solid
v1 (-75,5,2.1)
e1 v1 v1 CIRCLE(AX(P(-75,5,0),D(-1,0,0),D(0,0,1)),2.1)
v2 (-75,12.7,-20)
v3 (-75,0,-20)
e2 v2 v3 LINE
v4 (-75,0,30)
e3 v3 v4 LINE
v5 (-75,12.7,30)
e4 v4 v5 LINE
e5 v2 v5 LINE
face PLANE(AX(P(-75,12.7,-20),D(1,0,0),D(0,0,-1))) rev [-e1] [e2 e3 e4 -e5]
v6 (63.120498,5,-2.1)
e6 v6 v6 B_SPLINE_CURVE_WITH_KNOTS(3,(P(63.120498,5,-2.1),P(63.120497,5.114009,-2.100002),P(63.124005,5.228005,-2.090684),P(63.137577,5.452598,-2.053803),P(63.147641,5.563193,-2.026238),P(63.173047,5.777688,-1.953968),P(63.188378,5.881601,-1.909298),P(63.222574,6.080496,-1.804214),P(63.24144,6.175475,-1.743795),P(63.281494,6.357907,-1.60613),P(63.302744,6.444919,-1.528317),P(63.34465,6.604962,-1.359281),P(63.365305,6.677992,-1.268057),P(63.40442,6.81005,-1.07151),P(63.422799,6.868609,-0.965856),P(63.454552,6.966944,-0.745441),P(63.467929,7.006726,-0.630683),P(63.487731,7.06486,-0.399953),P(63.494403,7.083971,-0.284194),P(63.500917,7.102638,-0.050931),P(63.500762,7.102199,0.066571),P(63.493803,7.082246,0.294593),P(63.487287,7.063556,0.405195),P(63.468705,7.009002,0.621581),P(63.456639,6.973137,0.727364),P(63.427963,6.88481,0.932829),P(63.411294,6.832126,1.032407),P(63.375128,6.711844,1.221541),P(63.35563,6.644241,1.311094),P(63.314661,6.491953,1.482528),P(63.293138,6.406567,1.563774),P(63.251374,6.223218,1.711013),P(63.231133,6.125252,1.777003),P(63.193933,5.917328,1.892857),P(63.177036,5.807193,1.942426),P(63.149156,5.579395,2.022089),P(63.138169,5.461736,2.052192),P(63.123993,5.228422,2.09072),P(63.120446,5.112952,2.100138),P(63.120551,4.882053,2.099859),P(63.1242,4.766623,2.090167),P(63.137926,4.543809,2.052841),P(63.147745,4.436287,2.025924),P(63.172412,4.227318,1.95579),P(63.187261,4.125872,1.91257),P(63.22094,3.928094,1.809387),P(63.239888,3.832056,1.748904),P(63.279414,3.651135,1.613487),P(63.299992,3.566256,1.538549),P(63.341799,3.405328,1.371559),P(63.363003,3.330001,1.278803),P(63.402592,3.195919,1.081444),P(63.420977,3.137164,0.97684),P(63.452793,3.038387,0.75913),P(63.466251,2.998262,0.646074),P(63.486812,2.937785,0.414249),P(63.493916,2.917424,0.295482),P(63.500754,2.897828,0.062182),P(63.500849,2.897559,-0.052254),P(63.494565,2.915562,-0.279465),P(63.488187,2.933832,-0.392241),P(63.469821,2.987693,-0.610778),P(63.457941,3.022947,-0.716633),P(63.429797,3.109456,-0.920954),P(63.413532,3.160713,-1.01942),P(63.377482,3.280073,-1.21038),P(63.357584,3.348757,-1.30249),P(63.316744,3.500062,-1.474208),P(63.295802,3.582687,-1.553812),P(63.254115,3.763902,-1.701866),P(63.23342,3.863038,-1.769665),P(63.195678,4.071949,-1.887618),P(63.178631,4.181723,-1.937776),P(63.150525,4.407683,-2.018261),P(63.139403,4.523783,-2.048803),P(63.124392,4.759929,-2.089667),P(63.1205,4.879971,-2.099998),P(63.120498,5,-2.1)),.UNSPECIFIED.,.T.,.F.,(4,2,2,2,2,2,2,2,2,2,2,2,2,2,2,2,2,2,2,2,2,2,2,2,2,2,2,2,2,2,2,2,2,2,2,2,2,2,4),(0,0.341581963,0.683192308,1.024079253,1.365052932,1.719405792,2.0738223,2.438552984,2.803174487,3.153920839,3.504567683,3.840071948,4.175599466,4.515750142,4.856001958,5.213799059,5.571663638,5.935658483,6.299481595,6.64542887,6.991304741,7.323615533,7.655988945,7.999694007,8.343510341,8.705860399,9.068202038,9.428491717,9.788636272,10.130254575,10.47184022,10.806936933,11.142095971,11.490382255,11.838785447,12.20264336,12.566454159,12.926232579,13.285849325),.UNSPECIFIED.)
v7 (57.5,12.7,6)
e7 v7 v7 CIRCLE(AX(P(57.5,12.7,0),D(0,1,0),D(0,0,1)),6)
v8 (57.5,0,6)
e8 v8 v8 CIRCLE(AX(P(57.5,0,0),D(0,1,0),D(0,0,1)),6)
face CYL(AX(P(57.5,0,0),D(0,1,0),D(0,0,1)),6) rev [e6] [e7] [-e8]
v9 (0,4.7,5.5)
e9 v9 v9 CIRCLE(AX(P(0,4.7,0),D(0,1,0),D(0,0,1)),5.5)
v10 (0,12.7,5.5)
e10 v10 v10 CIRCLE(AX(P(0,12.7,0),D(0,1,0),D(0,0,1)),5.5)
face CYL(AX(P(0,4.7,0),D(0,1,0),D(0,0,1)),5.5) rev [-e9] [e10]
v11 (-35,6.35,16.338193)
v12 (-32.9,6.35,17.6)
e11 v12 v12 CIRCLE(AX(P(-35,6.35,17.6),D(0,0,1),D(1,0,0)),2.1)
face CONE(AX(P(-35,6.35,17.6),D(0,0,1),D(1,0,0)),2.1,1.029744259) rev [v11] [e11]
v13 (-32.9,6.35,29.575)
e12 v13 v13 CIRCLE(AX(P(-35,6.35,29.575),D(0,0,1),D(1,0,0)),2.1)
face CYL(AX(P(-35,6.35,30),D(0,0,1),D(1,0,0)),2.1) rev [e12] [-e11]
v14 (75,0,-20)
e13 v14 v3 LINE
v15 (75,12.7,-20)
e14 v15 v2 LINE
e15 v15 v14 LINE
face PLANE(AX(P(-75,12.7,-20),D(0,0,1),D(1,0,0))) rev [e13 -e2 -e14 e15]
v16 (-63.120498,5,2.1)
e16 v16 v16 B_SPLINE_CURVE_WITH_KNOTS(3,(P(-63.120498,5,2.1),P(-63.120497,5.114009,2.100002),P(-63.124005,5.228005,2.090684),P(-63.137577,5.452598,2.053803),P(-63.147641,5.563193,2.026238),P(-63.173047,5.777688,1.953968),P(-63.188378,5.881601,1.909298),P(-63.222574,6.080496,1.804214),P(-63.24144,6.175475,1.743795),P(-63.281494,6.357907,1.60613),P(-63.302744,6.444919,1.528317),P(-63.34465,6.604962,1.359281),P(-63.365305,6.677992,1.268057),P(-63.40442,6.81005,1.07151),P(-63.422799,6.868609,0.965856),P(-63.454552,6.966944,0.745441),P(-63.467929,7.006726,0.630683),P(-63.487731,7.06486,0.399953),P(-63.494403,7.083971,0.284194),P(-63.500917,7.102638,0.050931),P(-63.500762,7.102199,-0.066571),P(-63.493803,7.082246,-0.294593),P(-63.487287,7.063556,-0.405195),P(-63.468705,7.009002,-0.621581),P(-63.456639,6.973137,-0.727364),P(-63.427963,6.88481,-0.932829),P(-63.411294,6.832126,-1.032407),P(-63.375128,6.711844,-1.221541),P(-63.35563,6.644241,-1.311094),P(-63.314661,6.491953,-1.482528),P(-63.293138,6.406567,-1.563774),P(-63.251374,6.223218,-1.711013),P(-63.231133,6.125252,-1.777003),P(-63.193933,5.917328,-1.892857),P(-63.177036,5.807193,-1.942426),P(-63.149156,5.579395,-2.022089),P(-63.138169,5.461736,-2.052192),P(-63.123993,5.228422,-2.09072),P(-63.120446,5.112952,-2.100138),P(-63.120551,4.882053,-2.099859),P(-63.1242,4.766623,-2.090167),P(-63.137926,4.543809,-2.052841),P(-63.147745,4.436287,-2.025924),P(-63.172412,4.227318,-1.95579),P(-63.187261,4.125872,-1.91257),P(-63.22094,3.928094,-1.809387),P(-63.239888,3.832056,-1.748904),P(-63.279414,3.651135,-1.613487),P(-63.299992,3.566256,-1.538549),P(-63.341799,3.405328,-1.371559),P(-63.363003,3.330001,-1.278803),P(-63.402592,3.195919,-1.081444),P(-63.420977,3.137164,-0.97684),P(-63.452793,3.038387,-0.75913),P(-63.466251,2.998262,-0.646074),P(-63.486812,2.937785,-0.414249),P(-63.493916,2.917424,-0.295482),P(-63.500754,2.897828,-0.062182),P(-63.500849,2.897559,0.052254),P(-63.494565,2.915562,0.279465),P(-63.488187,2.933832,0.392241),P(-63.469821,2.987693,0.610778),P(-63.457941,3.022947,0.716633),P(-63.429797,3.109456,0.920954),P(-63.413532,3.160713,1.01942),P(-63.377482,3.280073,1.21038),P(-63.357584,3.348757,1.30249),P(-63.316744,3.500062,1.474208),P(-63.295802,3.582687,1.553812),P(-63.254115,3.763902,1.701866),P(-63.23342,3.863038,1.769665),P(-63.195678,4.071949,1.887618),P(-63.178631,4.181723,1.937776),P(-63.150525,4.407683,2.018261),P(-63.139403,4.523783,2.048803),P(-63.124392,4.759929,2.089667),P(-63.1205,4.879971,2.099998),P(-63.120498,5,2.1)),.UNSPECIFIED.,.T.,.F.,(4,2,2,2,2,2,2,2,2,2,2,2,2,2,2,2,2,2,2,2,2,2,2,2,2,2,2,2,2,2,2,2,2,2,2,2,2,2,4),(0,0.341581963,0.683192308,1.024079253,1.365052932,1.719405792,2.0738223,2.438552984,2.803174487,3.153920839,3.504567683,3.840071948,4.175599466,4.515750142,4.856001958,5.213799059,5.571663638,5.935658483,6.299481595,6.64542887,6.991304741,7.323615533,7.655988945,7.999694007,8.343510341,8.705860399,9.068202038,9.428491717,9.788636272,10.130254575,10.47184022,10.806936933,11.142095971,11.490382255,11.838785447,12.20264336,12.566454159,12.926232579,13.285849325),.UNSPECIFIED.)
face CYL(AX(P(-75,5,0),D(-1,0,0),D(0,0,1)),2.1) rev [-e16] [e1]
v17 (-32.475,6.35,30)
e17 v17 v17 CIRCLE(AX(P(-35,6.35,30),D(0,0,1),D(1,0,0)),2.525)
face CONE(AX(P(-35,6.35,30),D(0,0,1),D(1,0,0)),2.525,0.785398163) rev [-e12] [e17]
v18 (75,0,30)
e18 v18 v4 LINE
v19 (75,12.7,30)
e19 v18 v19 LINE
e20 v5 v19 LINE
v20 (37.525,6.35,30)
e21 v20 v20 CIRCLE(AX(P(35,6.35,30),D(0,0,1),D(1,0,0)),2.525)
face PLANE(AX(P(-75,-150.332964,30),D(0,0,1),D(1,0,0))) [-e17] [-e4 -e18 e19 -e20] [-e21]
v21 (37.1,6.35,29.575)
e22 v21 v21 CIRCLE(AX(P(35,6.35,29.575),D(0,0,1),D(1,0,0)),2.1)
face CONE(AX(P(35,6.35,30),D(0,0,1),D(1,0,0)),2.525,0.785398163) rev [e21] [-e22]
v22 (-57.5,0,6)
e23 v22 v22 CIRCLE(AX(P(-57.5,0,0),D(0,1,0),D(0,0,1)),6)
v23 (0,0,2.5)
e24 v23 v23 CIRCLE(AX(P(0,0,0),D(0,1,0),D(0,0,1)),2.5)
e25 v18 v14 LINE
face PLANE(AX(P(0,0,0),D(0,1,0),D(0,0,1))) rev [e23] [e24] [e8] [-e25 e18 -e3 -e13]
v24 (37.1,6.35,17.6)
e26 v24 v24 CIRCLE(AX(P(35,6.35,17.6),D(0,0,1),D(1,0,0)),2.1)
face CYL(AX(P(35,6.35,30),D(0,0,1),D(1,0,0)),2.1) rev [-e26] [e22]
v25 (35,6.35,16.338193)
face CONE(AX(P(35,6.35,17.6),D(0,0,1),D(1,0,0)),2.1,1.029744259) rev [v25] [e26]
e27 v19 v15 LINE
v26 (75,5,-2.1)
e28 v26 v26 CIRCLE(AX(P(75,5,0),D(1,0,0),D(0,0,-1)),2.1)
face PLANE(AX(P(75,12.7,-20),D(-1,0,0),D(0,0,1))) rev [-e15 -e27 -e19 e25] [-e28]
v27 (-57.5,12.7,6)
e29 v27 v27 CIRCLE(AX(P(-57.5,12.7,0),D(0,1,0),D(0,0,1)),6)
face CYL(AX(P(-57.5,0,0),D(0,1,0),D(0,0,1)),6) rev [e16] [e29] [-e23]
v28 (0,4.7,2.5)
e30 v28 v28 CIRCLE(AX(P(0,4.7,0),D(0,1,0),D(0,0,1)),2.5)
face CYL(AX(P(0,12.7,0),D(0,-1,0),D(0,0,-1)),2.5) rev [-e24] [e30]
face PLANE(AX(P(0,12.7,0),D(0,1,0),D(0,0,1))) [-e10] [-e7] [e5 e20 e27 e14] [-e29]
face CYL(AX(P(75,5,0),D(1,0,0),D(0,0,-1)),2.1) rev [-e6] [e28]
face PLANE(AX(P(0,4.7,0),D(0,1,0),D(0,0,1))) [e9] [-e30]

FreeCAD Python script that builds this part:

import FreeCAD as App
import Part
import Sketcher
from FreeCAD import Vector
Q = App.Units.Quantity

doc = App.newDocument("Part")
body = doc.addObject("PartDesign::Body", "Body")

# Sketch on XZ plane
sketch1 = body.newObject("Sketcher::SketchObject", "Sketch")
sketch1.AttachmentSupport = (doc.getObject("XZ_Plane"), [""])
sketch1.MapMode = "FlatFace"
sketch1.addGeometry([
    Part.LineSegment(Vector(-75, -20, 0), Vector(-75, 20, 0)),  # 0
    Part.LineSegment(Vector(-75, 20, 0), Vector(75, 20, 0)),  # 1
    Part.LineSegment(Vector(75, 20, 0), Vector(75, -20, 0)),  # 2
    Part.LineSegment(Vector(75, -20, 0), Vector(-75, -20, 0)),  # 3
    Part.Circle(Vector(0, 0, 0), Vector(0, 0, 1), 2.5),  # 4
], False)
sketch1.addConstraint([
    Sketcher.Constraint("Coincident", 0, 2, 1, 1),
    Sketcher.Constraint("Coincident", 1, 2, 2, 1),
    Sketcher.Constraint("Coincident", 2, 2, 3, 1),
    Sketcher.Constraint("Coincident", 3, 2, 0, 1),
    Sketcher.Constraint("Vertical", 0),
    Sketcher.Constraint("Horizontal", 1),
    Sketcher.Constraint("Vertical", 2),
    Sketcher.Constraint("Horizontal", 3),
    Sketcher.Constraint("Coincident", 4, 3, -1, 1),
    Sketcher.Constraint("Symmetric", 0, 2, 2, 2, -1, 1),
    Sketcher.Constraint("Diameter", 4, 5.0),
    Sketcher.Constraint("DistanceX", 1, 1, 1, 2, 150.0),
    Sketcher.Constraint("DistanceY", 0, 1, 0, 2, 40.0),
])
pad1 = body.newObject("PartDesign::Pad", "Pad")
pad1.Profile = sketch1
pad1.Length = 12.7
pad1.Reversed = True

# Sketch on XZ plane
sketch2 = body.newObject("Sketcher::SketchObject", "Sketch001")
sketch2.AttachmentSupport = (doc.getObject("XZ_Plane"), [""])
sketch2.MapMode = "FlatFace"
sketch2.AttachmentOffset = App.Placement(Vector(0, 0, -12.7), App.Rotation())
sketch2.addGeometry(Part.Circle(Vector(0, 0, 0), Vector(0, 0, 1), 6), False)
sketch2.addConstraint([
    Sketcher.Constraint("Coincident", 0, 3, -1, 1),
    Sketcher.Constraint("Diameter", 0, 11.0),
])
pocket1 = body.newObject("PartDesign::Pocket", "Pocket")
pocket1.Profile = sketch2
pocket1.Length = 8
pocket1.Reversed = True

# Sketch on XZ plane
sketch3 = body.newObject("Sketcher::SketchObject", "Sketch002")
sketch3.AttachmentSupport = (doc.getObject("XZ_Plane"), [""])
sketch3.MapMode = "FlatFace"
sketch3.AttachmentOffset = App.Placement(Vector(0, 0, -12.7), App.Rotation())
sketch3.addGeometry([
    Part.Circle(Vector(-58, 0, 0), Vector(0, 0, 1), 6),
    Part.Circle(Vector(58, 0, 0), Vector(0, 0, 1), 6),
], False)
sketch3.addConstraint([
    Sketcher.Constraint("Equal", 0, 1),
    Sketcher.Constraint("Symmetric", 0, 3, 1, 3, -1, 1),
    Sketcher.Constraint("PointOnObject", 0, 3, -1),
    Sketcher.Constraint("Diameter", 0, 12.0),
    Sketcher.Constraint("DistanceX", 0, 3, 1, 3, 115.0),
])
pocket2 = body.newObject("PartDesign::Pocket", "Pocket001")
pocket2.Profile = sketch3
pocket2.Type = "ThroughAll"
pocket2.Reversed = True

# Sketch on XZ plane
sketch4 = body.newObject("Sketcher::SketchObject", "Sketch003")
sketch4.AttachmentSupport = (doc.getObject("XZ_Plane"), [""])
sketch4.MapMode = "FlatFace"
sketch4.AttachmentOffset = App.Placement(Vector(0, 0, -5), App.Rotation())
sketch4.addGeometry([
    Part.LineSegment(Vector(61.7, 0, 0), Vector(75, 0, 0)),
    Part.LineSegment(Vector(75, 0, 0), Vector(75, -2.1, 0)),
    Part.LineSegment(Vector(75, -2.1, 0), Vector(63, -2.1, 0)),
    Part.LineSegment(Vector(63, -2.1, 0), Vector(61.7, 0, 0)),
], False)
sketch4.addConstraint([
    Sketcher.Constraint("Coincident", 0, 2, 1, 1),
    Sketcher.Constraint("Coincident", 1, 2, 2, 1),
    Sketcher.Constraint("Coincident", 2, 2, 3, 1),
    Sketcher.Constraint("Coincident", 3, 2, 0, 1),
    Sketcher.Constraint("Horizontal", 0),
    Sketcher.Constraint("Vertical", 1),
    Sketcher.Constraint("Horizontal", 2),
    Sketcher.Constraint("PointOnObject", 0, 2, -1),
    Sketcher.Constraint("DistanceX", 2, 2, 2, 1, 12.0),
    Sketcher.Constraint("Angle", 3, Q("121 deg")),
    Sketcher.Constraint("DistanceY", 1, 2, 1, 1, 2.1),
    Sketcher.Constraint("DistanceX", -1, 1, 0, 2, 75.0),
])
groove = body.newObject("PartDesign::Groove", "Groove")
groove.Profile = sketch4
groove.ReferenceAxis = (sketch4, ["H_Axis"])
groove.Angle = 360
doc.recompute()

mirrored = body.newObject("PartDesign::Mirrored", "Mirrored")
mirrored.Originals = [groove]
mirrored.MirrorPlane = (doc.getObject("YZ_Plane"), [""])
body.Tip = mirrored

# Sketch on XZ plane
sketch5 = body.newObject("Sketcher::SketchObject", "Sketch004")
sketch5.AttachmentSupport = (doc.getObject("XZ_Plane"), [""])
sketch5.MapMode = "FlatFace"
sketch5.AttachmentOffset = App.Placement(Vector(0, 0, -12.7), App.Rotation())
sketch5.addGeometry([
    Part.LineSegment(Vector(-75, 20, 0), Vector(-75, 30, 0)),
    Part.LineSegment(Vector(-75, 30, 0), Vector(75, 30, 0)),
    Part.LineSegment(Vector(75, 30, 0), Vector(75, 20, 0)),
    Part.LineSegment(Vector(75, 20, 0), Vector(-75, 20, 0)),
], False)
sketch5.addConstraint([
    Sketcher.Constraint("Coincident", 0, 2, 1, 1),
    Sketcher.Constraint("Coincident", 1, 2, 2, 1),
    Sketcher.Constraint("Coincident", 2, 2, 3, 1),
    Sketcher.Constraint("Coincident", 3, 2, 0, 1),
    Sketcher.Constraint("Vertical", 0),
    Sketcher.Constraint("Horizontal", 1),
    Sketcher.Constraint("Vertical", 2),
    Sketcher.Constraint("Horizontal", 3),
    Sketcher.Constraint("DistanceX", 1, 1, 1, 2, 150.0),
    Sketcher.Constraint("DistanceY", 0, 1, 0, 2, 10.0),
    Sketcher.Constraint("DistanceX", 0, 2, -1, 1, 75.0),
    Sketcher.Constraint("DistanceY", -1, 1, 0, 2, 30.0),
])
pad2 = body.newObject("PartDesign::Pad", "Pad001")
pad2.Profile = sketch5
pad2.Length = 12.7

# Sketch on XY plane
sketch6 = body.newObject("Sketcher::SketchObject", "Sketch005")
sketch6.AttachmentSupport = (doc.getObject("XY_Plane"), [""])
sketch6.MapMode = "FlatFace"
sketch6.AttachmentOffset = App.Placement(Vector(0, 0, 30), App.Rotation())
sketch6.addGeometry([
    Part.Circle(Vector(35, 6.3, 0), Vector(0, 0, 1), 2),
    Part.Circle(Vector(-35, 6.3, 0), Vector(0, 0, 1), 2),
], False)
sketch6.addConstraint([
    Sketcher.Constraint("Equal", 0, 1),
    Sketcher.Constraint("Symmetric", 0, 3, 1, 3, -2),
    Sketcher.Constraint("Diameter", 0, 4.0),
    Sketcher.Constraint("DistanceX", -1, 1, 0, 3, 35.0),
    Sketcher.Constraint("DistanceY", -1, 1, 0, 3, 6.35),
])
pocket3 = body.newObject("PartDesign::Pocket", "Pocket002")
pocket3.Profile = sketch6
pocket3.Length = 10

# Sketch on XY plane
sketch7 = body.newObject("Sketcher::SketchObject", "Sketch006")
sketch7.AttachmentSupport = (doc.getObject("XY_Plane"), [""])
sketch7.MapMode = "FlatFace"
sketch7.AttachmentOffset = App.Placement(Vector(0, 0, 30), App.Rotation())
sketch7.addGeometry(Part.Circle(Vector(-35, 6.3, 0), Vector(0, 0, 1), 2.1), False)
sketch7.addConstraint([
    Sketcher.Constraint("Diameter", 0, 4.2),
    Sketcher.Constraint("DistanceX", 0, 3, -1, 1, 35.0),
    Sketcher.Constraint("DistanceY", -1, 1, 0, 3, 6.35),
])
doc.recompute()
hole = body.newObject("PartDesign::Hole", "Hole")
hole.Profile = sketch7
hole.ThreadType = "None"
hole.Diameter = 4.2
hole.DepthType = "Dimension"
hole.Depth = 12.4
hole.DrillPoint = "Angled"
hole.DrillPointAngle = 118
hole.HoleCutType = "Countersink"
hole.HoleCutDiameter = 5.05
hole.HoleCutCountersinkAngle = 90

# Sketch on XY plane
sketch8 = body.newObject("Sketcher::SketchObject", "Sketch007")
sketch8.AttachmentSupport = (doc.getObject("XY_Plane"), [""])
sketch8.MapMode = "FlatFace"
sketch8.AttachmentOffset = App.Placement(Vector(0, 0, 30), App.Rotation())
sketch8.addGeometry(Part.Circle(Vector(35, 6.3, 0), Vector(0, 0, 1), 2.1), False)
sketch8.addConstraint([
    Sketcher.Constraint("Diameter", 0, 4.2),
    Sketcher.Constraint("DistanceX", -1, 1, 0, 3, 35.0),
    Sketcher.Constraint("DistanceY", -1, 1, 0, 3, 6.35),
])
doc.recompute()
hole2 = body.newObject("PartDesign::Hole", "Hole001")
hole2.Profile = sketch8
hole2.ThreadType = "None"
hole2.Diameter = 4.2
hole2.DepthType = "Dimension"
hole2.Depth = 12.4
hole2.DrillPoint = "Angled"
hole2.DrillPointAngle = 118
hole2.HoleCutType = "Countersink"
hole2.HoleCutDiameter = 5.05
hole2.HoleCutCountersinkAngle = 90

doc.recompute()
